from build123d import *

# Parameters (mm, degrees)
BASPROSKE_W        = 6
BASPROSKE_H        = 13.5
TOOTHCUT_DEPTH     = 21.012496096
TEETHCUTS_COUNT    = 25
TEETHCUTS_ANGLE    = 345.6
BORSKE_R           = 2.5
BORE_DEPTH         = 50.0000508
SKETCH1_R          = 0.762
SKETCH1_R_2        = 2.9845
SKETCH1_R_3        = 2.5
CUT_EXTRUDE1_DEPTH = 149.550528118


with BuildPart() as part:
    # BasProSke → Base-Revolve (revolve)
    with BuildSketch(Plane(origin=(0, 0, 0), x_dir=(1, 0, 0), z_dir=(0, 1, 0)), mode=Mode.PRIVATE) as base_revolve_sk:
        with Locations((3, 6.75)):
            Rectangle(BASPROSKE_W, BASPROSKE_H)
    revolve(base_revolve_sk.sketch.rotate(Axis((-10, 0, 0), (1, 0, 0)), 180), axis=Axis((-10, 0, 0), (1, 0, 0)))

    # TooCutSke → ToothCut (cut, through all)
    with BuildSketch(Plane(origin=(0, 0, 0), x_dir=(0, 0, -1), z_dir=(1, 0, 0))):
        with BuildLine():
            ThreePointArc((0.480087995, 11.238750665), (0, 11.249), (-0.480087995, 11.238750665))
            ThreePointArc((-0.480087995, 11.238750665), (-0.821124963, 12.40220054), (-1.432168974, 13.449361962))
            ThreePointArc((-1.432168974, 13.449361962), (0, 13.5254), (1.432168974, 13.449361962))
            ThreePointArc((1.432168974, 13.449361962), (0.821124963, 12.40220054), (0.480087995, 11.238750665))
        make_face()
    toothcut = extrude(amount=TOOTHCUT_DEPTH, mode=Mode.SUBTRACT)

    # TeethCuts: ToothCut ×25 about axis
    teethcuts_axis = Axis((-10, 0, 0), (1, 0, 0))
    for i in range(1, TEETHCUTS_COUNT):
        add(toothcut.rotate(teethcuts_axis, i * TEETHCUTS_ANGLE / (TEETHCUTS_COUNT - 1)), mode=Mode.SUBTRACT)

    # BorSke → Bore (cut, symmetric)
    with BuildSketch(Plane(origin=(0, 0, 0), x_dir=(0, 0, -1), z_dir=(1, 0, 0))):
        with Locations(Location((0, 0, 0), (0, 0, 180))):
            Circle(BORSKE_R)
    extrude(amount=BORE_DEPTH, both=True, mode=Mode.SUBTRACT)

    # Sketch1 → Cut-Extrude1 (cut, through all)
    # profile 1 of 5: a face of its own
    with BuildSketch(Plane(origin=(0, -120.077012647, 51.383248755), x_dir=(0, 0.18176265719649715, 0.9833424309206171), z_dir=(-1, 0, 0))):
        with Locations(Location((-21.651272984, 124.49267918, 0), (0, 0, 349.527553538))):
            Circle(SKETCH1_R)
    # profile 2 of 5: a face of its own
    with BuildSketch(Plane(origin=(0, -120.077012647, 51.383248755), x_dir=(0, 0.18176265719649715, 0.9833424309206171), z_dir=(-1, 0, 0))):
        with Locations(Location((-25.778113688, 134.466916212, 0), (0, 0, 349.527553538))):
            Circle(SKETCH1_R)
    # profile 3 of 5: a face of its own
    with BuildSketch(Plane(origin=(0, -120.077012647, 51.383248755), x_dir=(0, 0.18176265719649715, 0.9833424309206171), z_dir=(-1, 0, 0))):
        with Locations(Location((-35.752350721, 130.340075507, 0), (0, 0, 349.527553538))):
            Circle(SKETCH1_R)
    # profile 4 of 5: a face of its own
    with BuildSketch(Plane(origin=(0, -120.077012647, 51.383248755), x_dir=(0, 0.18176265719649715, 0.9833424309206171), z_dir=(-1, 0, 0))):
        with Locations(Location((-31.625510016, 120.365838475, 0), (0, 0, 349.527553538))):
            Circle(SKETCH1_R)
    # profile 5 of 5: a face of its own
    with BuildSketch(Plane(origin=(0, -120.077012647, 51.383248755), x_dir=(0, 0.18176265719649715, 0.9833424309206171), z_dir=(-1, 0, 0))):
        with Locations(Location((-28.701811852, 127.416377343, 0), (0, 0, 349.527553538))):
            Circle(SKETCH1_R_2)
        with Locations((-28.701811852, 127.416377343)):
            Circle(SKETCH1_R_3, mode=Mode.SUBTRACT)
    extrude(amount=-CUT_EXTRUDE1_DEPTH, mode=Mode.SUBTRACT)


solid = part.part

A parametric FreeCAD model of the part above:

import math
import FreeCAD as App
import Part
import Sketcher


def add_polygon(sketch, points):
    """Adds a closed chain of lines whose ends are joined by coincident constraints."""
    first, n = sketch.GeometryCount, len(points)
    for a, b in zip(points, points[1:] + points[:1]):
        sketch.addGeometry(Part.LineSegment(App.Vector(*a, 0), App.Vector(*b, 0)), False)
    for i in range(n):
        sketch.addConstraint(Sketcher.Constraint("Coincident", first + i, 2, first + (i + 1) % n, 1))

doc = App.newDocument("Part")
body = doc.addObject("PartDesign::Body", "Body")

# Sketch on XZ plane
sketch1 = doc.addObject("Sketcher::SketchObject", "Sketch")
body.addObject(sketch1)
sketch1.AttachmentSupport = (doc.XZ_Plane, [""])
sketch1.MapMode = "FlatFace"
add_polygon(sketch1, [(0, -14), (0, 0), (6, 0), (6, -14)])  # lines 0-3
sketch1.addConstraint([
    Sketcher.Constraint("Vertical", 0),
    Sketcher.Constraint("Horizontal", 1),
    Sketcher.Constraint("Vertical", 2),
    Sketcher.Constraint("Horizontal", 3),
    Sketcher.Constraint("Coincident", 0, 2, -1, 1),
    Sketcher.Constraint("DistanceX", 1, 1, 1, 2, 6.0),
    Sketcher.Constraint("DistanceY", 0, 1, 0, 2, 13.5),
])
revolution = doc.addObject("PartDesign::Revolution", "Revolution")
body.addObject(revolution)
revolution.Profile = sketch1
revolution.ReferenceAxis = (sketch1, ["H_Axis"])
revolution.Angle = 360

# Sketch on YZ plane
sketch2 = doc.addObject("Sketcher::SketchObject", "Sketch001")
body.addObject(sketch2)
sketch2.AttachmentSupport = (doc.YZ_Plane, [""])
sketch2.MapMode = "FlatFace"
sketch2.addGeometry([
    Part.ArcOfCircle(Part.Circle(App.Vector(0, 0, 0), App.Vector(0, 0, 1), 11.2), math.radians(-2.45), math.radians(2.45)),
    Part.ArcOfCircle(Part.Circle(App.Vector(10.4, -5.4, 0), App.Vector(0, 0, 1), 5), math.radians(53), math.radians(81)),
    Part.ArcOfCircle(Part.Circle(App.Vector(0, 0, 0), App.Vector(0, 0, 1), 13.5), math.radians(-6.08), math.radians(6.08)),
    Part.ArcOfCircle(Part.Circle(App.Vector(10.4, 5.4, 0), App.Vector(0, 0, 1), 5), math.radians(-81), math.radians(-53)),
], False)
sketch2.addConstraint([
    Sketcher.Constraint("Coincident", 0, 1, 1, 2),
    Sketcher.Constraint("Coincident", 1, 1, 2, 1),
    Sketcher.Constraint("Coincident", 2, 2, 3, 2),
    Sketcher.Constraint("Coincident", 3, 1, 0, 2),
    Sketcher.Constraint("Coincident", 0, 3, -1, 1),
    Sketcher.Constraint("Coincident", 2, 3, -1, 1),
    Sketcher.Constraint("Equal", 1, 3),
    Sketcher.Constraint("Symmetric", 1, 3, 3, 3, -1),
    Sketcher.Constraint("Radius", 1, 5.0),
    Sketcher.Constraint("Radius", 0, 11.249),
    Sketcher.Constraint("Radius", 2, 13.5254),
    Sketcher.Constraint("DistanceX", -1, 1, 1, 3, 10.424401),
    Sketcher.Constraint("DistanceX", -1, 1, 0, 1, 11.238751),
])
pocket1 = doc.addObject("PartDesign::Pocket", "Pocket")
body.addObject(pocket1)
pocket1.Profile = sketch2
pocket1.Type = "ThroughAll"
pocket1.Reversed = True
doc.recompute()

polarpattern = doc.addObject("PartDesign::PolarPattern", "PolarPattern")
body.addObject(polarpattern)
polarpattern.Originals = [pocket1]
polarpattern.Axis = (doc.X_Axis, [""])
polarpattern.Angle = 360
polarpattern.Occurrences = 25
body.Tip = polarpattern

# Sketch on YZ plane
sketch3 = doc.addObject("Sketcher::SketchObject", "Sketch002")
body.addObject(sketch3)
sketch3.AttachmentSupport = (doc.YZ_Plane, [""])
sketch3.MapMode = "FlatFace"
sketch3.addGeometry(Part.Circle(App.Vector(0, 0, 0), App.Vector(0, 0, 1), 2.5), False)
sketch3.addConstraint([
    Sketcher.Constraint("Coincident", 0, 3, -1, 1),
    Sketcher.Constraint("Diameter", 0, 5.0),
])
pocket2 = doc.addObject("PartDesign::Pocket", "Pocket001")
body.addObject(pocket2)
pocket2.Profile = sketch3
pocket2.Length = 100.000102
pocket2.Midplane = True

# Sketch on YZ plane
sketch4 = doc.addObject("Sketcher::SketchObject", "Sketch003")
body.addObject(sketch4)
sketch4.AttachmentSupport = (doc.YZ_Plane, [""])
sketch4.MapMode = "FlatFace"
sketch4.addGeometry([
    Part.Circle(App.Vector(-1.6, 7.5, 0), App.Vector(0, 0, 1), 0.8),  # 0
    Part.Circle(App.Vector(7.5, 1.6, 0), App.Vector(0, 0, 1), 0.8),  # 1
    Part.Circle(App.Vector(1.6, -7.5, 0), App.Vector(0, 0, 1), 0.8),  # 2
    Part.Circle(App.Vector(-7.5, -1.6, 0), App.Vector(0, 0, 1), 0.8),  # 3
    Part.Circle(App.Vector(0, 0, 0), App.Vector(0, 0, 1), 3),  # 4
    Part.Circle(App.Vector(0, 0, 0), App.Vector(0, 0, 1), 2.5),  # 5
], False)
sketch4.addConstraint([
    Sketcher.Constraint("Coincident", 4, 3, -1, 1),
    Sketcher.Constraint("Coincident", 5, 3, -1, 1),
    Sketcher.Constraint("Equal", 0, 1),
    Sketcher.Constraint("Equal", 1, 2),
    Sketcher.Constraint("Equal", 2, 3),
    Sketcher.Constraint("Symmetric", 0, 3, 2, 3, -1, 1),
    Sketcher.Constraint("Symmetric", 1, 3, 3, 3, -1, 1),
    Sketcher.Constraint("Diameter", 5, 5.0),
    Sketcher.Constraint("Diameter", 0, 1.524),
    Sketcher.Constraint("Diameter", 4, 5.969),
    Sketcher.Constraint("DistanceX", 0, 3, -1, 1, 1.593472),
    Sketcher.Constraint("DistanceY", -1, 1, 1, 3, 1.593472),
    Sketcher.Constraint("DistanceY", 1, 3, 0, 3, 5.871041),
    Sketcher.Constraint("DistanceX", 2, 3, 1, 3, 5.871041),
])
pocket3 = doc.addObject("PartDesign::Pocket", "Pocket002")
body.addObject(pocket3)
pocket3.Profile = sketch4
pocket3.Length = 149.550528
pocket3.Reversed = True

doc.recompute()
